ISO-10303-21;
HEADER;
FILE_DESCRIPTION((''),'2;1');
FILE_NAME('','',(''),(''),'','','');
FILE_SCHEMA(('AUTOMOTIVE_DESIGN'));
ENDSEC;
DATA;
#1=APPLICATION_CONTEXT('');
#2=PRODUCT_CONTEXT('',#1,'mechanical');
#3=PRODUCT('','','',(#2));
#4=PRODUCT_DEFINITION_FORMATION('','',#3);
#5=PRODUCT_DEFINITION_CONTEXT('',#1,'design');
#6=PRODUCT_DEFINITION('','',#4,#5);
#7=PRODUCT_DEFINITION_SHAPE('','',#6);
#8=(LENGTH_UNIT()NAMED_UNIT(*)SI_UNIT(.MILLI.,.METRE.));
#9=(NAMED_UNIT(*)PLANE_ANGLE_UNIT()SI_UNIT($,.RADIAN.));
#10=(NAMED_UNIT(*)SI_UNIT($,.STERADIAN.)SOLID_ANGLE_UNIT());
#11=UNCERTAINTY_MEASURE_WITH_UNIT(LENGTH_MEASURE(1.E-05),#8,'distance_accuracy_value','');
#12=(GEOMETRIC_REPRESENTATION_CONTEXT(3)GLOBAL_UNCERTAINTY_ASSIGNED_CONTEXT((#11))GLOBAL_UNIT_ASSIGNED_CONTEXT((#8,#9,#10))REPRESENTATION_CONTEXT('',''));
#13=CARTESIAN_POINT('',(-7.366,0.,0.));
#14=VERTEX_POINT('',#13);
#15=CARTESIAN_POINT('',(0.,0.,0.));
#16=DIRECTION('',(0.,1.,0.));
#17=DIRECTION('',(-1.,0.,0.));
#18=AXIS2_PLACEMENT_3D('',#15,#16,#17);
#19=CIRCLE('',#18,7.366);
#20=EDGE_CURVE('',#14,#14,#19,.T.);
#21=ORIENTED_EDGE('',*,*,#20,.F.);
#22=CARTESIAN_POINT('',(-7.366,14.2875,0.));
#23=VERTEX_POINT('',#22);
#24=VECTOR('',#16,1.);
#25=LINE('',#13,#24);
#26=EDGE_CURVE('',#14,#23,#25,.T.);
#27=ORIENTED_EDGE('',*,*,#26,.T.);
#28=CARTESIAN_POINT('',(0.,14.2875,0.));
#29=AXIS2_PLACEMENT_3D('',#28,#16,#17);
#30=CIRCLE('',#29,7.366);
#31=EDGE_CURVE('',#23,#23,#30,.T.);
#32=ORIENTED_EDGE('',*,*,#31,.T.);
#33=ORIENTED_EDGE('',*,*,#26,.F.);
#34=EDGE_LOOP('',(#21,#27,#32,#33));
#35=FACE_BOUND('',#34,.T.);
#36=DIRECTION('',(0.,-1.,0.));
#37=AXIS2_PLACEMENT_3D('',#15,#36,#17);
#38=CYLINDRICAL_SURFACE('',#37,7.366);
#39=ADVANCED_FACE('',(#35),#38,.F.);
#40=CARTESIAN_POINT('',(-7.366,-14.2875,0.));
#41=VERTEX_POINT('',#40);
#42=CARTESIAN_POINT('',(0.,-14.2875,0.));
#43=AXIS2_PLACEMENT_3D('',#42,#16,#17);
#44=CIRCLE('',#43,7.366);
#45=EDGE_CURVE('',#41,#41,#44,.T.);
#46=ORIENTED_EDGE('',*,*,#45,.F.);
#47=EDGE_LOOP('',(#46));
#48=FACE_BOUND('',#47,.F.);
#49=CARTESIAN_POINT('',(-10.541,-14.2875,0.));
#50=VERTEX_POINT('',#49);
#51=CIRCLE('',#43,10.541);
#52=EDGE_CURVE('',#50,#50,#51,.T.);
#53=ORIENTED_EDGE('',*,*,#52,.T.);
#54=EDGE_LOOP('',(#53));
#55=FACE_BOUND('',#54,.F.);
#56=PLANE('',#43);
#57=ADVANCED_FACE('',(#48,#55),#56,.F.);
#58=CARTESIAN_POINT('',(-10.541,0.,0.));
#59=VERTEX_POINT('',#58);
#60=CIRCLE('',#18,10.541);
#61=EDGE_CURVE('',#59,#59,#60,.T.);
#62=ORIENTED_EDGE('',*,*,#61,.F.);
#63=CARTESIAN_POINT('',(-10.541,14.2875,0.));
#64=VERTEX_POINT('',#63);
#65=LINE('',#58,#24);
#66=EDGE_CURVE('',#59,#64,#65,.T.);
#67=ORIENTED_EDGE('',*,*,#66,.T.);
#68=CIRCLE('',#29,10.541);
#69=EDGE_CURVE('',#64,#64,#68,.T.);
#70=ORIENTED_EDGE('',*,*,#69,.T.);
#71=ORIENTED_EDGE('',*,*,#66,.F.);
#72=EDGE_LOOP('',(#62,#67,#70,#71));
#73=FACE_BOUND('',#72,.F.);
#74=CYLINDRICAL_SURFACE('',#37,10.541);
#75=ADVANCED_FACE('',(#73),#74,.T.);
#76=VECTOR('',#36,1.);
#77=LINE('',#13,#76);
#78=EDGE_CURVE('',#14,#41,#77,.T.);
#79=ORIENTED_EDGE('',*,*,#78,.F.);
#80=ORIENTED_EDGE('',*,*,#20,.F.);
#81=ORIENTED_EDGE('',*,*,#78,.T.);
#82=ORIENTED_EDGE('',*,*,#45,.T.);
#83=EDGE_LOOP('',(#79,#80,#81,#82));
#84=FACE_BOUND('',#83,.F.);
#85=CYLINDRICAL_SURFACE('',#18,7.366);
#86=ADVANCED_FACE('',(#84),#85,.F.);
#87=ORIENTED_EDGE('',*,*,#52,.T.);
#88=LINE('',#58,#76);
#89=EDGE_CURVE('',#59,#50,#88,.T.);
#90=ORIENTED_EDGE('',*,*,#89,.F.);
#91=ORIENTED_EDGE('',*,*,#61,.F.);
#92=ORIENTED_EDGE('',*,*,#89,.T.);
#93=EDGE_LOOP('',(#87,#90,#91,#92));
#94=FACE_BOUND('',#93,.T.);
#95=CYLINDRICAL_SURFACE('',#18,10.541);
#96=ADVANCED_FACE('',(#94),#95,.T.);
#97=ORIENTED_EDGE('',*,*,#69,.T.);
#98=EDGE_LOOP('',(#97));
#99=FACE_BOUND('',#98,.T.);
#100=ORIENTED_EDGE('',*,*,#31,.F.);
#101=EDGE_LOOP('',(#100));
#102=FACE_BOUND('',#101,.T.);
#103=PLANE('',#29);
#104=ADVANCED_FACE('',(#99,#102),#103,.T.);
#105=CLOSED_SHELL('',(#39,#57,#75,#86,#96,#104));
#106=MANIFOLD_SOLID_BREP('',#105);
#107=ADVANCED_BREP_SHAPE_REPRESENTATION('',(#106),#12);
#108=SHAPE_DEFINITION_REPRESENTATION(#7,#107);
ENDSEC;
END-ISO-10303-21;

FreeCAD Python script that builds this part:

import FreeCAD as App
import Part
import Sketcher
from FreeCAD import Vector
Q = App.Units.Quantity

doc = App.newDocument("Part")
body = doc.addObject("PartDesign::Body", "Body")

# Sketch on XZ plane
sketch1 = body.newObject("Sketcher::SketchObject", "Sketch")
sketch1.AttachmentSupport = (doc.getObject("XZ_Plane"), [""])
sketch1.MapMode = "FlatFace"
sketch1.addGeometry(Part.Circle(Vector(0, 0, 0), Vector(0, 0, 1), 11), False)
sketch1.addGeometry(Part.Circle(Vector(0, 0, 0), Vector(0, 0, 1), 7), False)
sketch1.addConstraint(Sketcher.Constraint("Coincident", 0, 3, -1, 1))
sketch1.addConstraint(Sketcher.Constraint("Coincident", 1, 3, -1, 1))
sketch1.addConstraint(Sketcher.Constraint("Diameter", 1, Q("0.58 in")))
sketch1.addConstraint(Sketcher.Constraint("Diameter", 0, Q("0.83 in")))
pad1 = body.newObject("PartDesign::Pad", "Pad")
pad1.Profile = sketch1
pad1.Length = Q("1.125 in")
pad1.Midplane = True

doc.recompute()
